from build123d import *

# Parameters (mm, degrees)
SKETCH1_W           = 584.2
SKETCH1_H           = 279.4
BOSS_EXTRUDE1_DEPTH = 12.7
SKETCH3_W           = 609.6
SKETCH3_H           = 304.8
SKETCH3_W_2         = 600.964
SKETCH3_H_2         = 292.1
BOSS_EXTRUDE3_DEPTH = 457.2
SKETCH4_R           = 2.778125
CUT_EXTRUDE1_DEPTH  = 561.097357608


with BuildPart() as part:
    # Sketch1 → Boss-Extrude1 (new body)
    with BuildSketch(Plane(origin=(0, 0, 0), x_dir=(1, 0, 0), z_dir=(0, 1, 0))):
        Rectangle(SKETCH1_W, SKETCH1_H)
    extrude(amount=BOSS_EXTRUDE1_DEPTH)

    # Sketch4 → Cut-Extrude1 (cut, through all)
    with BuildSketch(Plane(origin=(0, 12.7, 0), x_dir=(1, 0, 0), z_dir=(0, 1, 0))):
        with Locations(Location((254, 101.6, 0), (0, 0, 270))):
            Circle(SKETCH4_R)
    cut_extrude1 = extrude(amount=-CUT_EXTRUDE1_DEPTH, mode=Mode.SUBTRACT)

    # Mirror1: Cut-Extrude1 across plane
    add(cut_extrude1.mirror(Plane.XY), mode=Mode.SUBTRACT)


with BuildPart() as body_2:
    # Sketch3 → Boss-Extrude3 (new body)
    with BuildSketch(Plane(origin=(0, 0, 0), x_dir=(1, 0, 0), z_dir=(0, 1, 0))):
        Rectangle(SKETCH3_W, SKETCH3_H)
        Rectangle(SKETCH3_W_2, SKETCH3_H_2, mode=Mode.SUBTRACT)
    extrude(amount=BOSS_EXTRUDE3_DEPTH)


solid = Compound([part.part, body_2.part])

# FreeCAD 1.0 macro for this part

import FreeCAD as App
import Part
import Sketcher
Q = App.Units.Quantity


def add_polygon(sketch, points):
    """Adds a closed chain of lines whose ends are joined by coincident constraints."""
    first, n = sketch.GeometryCount, len(points)
    for a, b in zip(points, points[1:] + points[:1]):
        sketch.addGeometry(Part.LineSegment(App.Vector(*a, 0), App.Vector(*b, 0)), False)
    for i in range(n):
        sketch.addConstraint(Sketcher.Constraint("Coincident", first + i, 2, first + (i + 1) % n, 1))

doc = App.newDocument("Part")
params = doc.addObject("Spreadsheet::Sheet", "Params")
for row, (alias, value) in enumerate([
    ("sketch1_width", "23 in"),
    ("sketch1_height", "11 in"),
    ("pad1_length", "0.5 in"),
    ("sketch2_diameter", "0.21875 in"),
    ("sketch3_width", "24 in"),
    ("sketch3_height", "12 in"),
    ("sketch3_height2", "11.5 in"),
    ("sketch3_width2", "23.66 in"),
    ("pad2_length", "18 in"),
], start=1):
    params.set(f"A{row}", alias)
    params.set(f"B{row}", "=" + value)
    params.setAlias(f"B{row}", alias)

body = doc.addObject("PartDesign::Body", "Body")

# Sketch on XZ plane
sketch1 = doc.addObject("Sketcher::SketchObject", "Sketch")
body.addObject(sketch1)
sketch1.AttachmentSupport = (doc.XZ_Plane, [""])
sketch1.MapMode = "FlatFace"
add_polygon(sketch1, [(-292, -140), (-292, 140), (292, 140), (292, -140)])  # lines 0-3
sketch1.addConstraint(Sketcher.Constraint("Vertical", 0))
sketch1.addConstraint(Sketcher.Constraint("Horizontal", 1))
sketch1.addConstraint(Sketcher.Constraint("Vertical", 2))
sketch1.addConstraint(Sketcher.Constraint("Horizontal", 3))
sketch1.addConstraint(Sketcher.Constraint("Symmetric", 0, 2, 2, 2, -1, 1))
sketch1.addConstraint(Sketcher.Constraint("DistanceX", 1, 1, 1, 2, Q("23 in")))
sketch1.addConstraint(Sketcher.Constraint("DistanceY", 0, 1, 0, 2, Q("11 in")))
sketch1.setExpression("Constraints[9]", "Params.sketch1_width")
sketch1.setExpression("Constraints[10]", "Params.sketch1_height")
pad1 = doc.addObject("PartDesign::Pad", "Pad")
body.addObject(pad1)
pad1.Profile = sketch1
pad1.setExpression("Length", "Params.pad1_length")
pad1.Reversed = True

# Sketch on XZ plane
sketch2 = doc.addObject("Sketcher::SketchObject", "Sketch001")
body.addObject(sketch2)
sketch2.AttachmentSupport = (doc.XZ_Plane, [""])
sketch2.MapMode = "FlatFace"
sketch2.AttachmentOffset = App.Placement(App.Vector(0, 0, -0.5 * 25.4), App.Rotation())
sketch2.addGeometry(Part.Circle(App.Vector(254, -101.6, 0), App.Vector(0, 0, 1), 2.8), False)
sketch2.addConstraint(Sketcher.Constraint("Diameter", 0, Q("0.21875 in")))
sketch2.addConstraint(Sketcher.Constraint("DistanceX", -1, 1, 0, 3, Q("10 in")))
sketch2.addConstraint(Sketcher.Constraint("DistanceY", 0, 3, -1, 1, Q("4 in")))
sketch2.setExpression("Constraints[0]", "Params.sketch2_diameter")
pocket1 = doc.addObject("PartDesign::Pocket", "Pocket")
body.addObject(pocket1)
pocket1.Profile = sketch2
pocket1.Type = "ThroughAll"
pocket1.Reversed = True
doc.recompute()

mirrored = doc.addObject("PartDesign::Mirrored", "Mirrored")
body.addObject(mirrored)
mirrored.Originals = [pocket1]
mirrored.MirrorPlane = (doc.XY_Plane, [""])
body.Tip = mirrored
body2 = doc.addObject("PartDesign::Body", "Body001")

# Sketch on XZ plane
sketch3 = doc.addObject("Sketcher::SketchObject", "Sketch002")
body2.addObject(sketch3)
sketch3.AttachmentSupport = (doc.getObject("XZ_Plane001"), [""])
sketch3.MapMode = "FlatFace"
add_polygon(sketch3, [(-305, -152), (-305, 152), (305, 152), (305, -152)])  # lines 0-3
add_polygon(sketch3, [(300, 146), (-300, 146), (-300, -146), (300, -146)])  # lines 4-7
sketch3.addConstraint(Sketcher.Constraint("Vertical", 0))
sketch3.addConstraint(Sketcher.Constraint("Horizontal", 1))
sketch3.addConstraint(Sketcher.Constraint("Vertical", 2))
sketch3.addConstraint(Sketcher.Constraint("Horizontal", 3))
sketch3.addConstraint(Sketcher.Constraint("Horizontal", 4))
sketch3.addConstraint(Sketcher.Constraint("Vertical", 5))
sketch3.addConstraint(Sketcher.Constraint("Horizontal", 6))
sketch3.addConstraint(Sketcher.Constraint("Vertical", 7))
sketch3.addConstraint(Sketcher.Constraint("Symmetric", 0, 2, 2, 2, -1, 1))
sketch3.addConstraint(Sketcher.Constraint("Symmetric", 4, 2, 6, 2, -1, 1))
sketch3.addConstraint(Sketcher.Constraint("DistanceX", 1, 1, 1, 2, Q("24 in")))
sketch3.addConstraint(Sketcher.Constraint("DistanceY", 0, 1, 0, 2, Q("12 in")))
sketch3.addConstraint(Sketcher.Constraint("DistanceY", 5, 2, 5, 1, Q("11.5 in")))
sketch3.addConstraint(Sketcher.Constraint("DistanceX", 4, 2, 4, 1, Q("23.66 in")))
sketch3.setExpression("Constraints[18]", "Params.sketch3_width")
sketch3.setExpression("Constraints[19]", "Params.sketch3_height")
sketch3.setExpression("Constraints[20]", "Params.sketch3_height2")
sketch3.setExpression("Constraints[21]", "Params.sketch3_width2")
pad2 = doc.addObject("PartDesign::Pad", "Pad001")
body2.addObject(pad2)
pad2.Profile = sketch3
pad2.setExpression("Length", "Params.pad2_length")
pad2.Reversed = True

doc.recompute()
